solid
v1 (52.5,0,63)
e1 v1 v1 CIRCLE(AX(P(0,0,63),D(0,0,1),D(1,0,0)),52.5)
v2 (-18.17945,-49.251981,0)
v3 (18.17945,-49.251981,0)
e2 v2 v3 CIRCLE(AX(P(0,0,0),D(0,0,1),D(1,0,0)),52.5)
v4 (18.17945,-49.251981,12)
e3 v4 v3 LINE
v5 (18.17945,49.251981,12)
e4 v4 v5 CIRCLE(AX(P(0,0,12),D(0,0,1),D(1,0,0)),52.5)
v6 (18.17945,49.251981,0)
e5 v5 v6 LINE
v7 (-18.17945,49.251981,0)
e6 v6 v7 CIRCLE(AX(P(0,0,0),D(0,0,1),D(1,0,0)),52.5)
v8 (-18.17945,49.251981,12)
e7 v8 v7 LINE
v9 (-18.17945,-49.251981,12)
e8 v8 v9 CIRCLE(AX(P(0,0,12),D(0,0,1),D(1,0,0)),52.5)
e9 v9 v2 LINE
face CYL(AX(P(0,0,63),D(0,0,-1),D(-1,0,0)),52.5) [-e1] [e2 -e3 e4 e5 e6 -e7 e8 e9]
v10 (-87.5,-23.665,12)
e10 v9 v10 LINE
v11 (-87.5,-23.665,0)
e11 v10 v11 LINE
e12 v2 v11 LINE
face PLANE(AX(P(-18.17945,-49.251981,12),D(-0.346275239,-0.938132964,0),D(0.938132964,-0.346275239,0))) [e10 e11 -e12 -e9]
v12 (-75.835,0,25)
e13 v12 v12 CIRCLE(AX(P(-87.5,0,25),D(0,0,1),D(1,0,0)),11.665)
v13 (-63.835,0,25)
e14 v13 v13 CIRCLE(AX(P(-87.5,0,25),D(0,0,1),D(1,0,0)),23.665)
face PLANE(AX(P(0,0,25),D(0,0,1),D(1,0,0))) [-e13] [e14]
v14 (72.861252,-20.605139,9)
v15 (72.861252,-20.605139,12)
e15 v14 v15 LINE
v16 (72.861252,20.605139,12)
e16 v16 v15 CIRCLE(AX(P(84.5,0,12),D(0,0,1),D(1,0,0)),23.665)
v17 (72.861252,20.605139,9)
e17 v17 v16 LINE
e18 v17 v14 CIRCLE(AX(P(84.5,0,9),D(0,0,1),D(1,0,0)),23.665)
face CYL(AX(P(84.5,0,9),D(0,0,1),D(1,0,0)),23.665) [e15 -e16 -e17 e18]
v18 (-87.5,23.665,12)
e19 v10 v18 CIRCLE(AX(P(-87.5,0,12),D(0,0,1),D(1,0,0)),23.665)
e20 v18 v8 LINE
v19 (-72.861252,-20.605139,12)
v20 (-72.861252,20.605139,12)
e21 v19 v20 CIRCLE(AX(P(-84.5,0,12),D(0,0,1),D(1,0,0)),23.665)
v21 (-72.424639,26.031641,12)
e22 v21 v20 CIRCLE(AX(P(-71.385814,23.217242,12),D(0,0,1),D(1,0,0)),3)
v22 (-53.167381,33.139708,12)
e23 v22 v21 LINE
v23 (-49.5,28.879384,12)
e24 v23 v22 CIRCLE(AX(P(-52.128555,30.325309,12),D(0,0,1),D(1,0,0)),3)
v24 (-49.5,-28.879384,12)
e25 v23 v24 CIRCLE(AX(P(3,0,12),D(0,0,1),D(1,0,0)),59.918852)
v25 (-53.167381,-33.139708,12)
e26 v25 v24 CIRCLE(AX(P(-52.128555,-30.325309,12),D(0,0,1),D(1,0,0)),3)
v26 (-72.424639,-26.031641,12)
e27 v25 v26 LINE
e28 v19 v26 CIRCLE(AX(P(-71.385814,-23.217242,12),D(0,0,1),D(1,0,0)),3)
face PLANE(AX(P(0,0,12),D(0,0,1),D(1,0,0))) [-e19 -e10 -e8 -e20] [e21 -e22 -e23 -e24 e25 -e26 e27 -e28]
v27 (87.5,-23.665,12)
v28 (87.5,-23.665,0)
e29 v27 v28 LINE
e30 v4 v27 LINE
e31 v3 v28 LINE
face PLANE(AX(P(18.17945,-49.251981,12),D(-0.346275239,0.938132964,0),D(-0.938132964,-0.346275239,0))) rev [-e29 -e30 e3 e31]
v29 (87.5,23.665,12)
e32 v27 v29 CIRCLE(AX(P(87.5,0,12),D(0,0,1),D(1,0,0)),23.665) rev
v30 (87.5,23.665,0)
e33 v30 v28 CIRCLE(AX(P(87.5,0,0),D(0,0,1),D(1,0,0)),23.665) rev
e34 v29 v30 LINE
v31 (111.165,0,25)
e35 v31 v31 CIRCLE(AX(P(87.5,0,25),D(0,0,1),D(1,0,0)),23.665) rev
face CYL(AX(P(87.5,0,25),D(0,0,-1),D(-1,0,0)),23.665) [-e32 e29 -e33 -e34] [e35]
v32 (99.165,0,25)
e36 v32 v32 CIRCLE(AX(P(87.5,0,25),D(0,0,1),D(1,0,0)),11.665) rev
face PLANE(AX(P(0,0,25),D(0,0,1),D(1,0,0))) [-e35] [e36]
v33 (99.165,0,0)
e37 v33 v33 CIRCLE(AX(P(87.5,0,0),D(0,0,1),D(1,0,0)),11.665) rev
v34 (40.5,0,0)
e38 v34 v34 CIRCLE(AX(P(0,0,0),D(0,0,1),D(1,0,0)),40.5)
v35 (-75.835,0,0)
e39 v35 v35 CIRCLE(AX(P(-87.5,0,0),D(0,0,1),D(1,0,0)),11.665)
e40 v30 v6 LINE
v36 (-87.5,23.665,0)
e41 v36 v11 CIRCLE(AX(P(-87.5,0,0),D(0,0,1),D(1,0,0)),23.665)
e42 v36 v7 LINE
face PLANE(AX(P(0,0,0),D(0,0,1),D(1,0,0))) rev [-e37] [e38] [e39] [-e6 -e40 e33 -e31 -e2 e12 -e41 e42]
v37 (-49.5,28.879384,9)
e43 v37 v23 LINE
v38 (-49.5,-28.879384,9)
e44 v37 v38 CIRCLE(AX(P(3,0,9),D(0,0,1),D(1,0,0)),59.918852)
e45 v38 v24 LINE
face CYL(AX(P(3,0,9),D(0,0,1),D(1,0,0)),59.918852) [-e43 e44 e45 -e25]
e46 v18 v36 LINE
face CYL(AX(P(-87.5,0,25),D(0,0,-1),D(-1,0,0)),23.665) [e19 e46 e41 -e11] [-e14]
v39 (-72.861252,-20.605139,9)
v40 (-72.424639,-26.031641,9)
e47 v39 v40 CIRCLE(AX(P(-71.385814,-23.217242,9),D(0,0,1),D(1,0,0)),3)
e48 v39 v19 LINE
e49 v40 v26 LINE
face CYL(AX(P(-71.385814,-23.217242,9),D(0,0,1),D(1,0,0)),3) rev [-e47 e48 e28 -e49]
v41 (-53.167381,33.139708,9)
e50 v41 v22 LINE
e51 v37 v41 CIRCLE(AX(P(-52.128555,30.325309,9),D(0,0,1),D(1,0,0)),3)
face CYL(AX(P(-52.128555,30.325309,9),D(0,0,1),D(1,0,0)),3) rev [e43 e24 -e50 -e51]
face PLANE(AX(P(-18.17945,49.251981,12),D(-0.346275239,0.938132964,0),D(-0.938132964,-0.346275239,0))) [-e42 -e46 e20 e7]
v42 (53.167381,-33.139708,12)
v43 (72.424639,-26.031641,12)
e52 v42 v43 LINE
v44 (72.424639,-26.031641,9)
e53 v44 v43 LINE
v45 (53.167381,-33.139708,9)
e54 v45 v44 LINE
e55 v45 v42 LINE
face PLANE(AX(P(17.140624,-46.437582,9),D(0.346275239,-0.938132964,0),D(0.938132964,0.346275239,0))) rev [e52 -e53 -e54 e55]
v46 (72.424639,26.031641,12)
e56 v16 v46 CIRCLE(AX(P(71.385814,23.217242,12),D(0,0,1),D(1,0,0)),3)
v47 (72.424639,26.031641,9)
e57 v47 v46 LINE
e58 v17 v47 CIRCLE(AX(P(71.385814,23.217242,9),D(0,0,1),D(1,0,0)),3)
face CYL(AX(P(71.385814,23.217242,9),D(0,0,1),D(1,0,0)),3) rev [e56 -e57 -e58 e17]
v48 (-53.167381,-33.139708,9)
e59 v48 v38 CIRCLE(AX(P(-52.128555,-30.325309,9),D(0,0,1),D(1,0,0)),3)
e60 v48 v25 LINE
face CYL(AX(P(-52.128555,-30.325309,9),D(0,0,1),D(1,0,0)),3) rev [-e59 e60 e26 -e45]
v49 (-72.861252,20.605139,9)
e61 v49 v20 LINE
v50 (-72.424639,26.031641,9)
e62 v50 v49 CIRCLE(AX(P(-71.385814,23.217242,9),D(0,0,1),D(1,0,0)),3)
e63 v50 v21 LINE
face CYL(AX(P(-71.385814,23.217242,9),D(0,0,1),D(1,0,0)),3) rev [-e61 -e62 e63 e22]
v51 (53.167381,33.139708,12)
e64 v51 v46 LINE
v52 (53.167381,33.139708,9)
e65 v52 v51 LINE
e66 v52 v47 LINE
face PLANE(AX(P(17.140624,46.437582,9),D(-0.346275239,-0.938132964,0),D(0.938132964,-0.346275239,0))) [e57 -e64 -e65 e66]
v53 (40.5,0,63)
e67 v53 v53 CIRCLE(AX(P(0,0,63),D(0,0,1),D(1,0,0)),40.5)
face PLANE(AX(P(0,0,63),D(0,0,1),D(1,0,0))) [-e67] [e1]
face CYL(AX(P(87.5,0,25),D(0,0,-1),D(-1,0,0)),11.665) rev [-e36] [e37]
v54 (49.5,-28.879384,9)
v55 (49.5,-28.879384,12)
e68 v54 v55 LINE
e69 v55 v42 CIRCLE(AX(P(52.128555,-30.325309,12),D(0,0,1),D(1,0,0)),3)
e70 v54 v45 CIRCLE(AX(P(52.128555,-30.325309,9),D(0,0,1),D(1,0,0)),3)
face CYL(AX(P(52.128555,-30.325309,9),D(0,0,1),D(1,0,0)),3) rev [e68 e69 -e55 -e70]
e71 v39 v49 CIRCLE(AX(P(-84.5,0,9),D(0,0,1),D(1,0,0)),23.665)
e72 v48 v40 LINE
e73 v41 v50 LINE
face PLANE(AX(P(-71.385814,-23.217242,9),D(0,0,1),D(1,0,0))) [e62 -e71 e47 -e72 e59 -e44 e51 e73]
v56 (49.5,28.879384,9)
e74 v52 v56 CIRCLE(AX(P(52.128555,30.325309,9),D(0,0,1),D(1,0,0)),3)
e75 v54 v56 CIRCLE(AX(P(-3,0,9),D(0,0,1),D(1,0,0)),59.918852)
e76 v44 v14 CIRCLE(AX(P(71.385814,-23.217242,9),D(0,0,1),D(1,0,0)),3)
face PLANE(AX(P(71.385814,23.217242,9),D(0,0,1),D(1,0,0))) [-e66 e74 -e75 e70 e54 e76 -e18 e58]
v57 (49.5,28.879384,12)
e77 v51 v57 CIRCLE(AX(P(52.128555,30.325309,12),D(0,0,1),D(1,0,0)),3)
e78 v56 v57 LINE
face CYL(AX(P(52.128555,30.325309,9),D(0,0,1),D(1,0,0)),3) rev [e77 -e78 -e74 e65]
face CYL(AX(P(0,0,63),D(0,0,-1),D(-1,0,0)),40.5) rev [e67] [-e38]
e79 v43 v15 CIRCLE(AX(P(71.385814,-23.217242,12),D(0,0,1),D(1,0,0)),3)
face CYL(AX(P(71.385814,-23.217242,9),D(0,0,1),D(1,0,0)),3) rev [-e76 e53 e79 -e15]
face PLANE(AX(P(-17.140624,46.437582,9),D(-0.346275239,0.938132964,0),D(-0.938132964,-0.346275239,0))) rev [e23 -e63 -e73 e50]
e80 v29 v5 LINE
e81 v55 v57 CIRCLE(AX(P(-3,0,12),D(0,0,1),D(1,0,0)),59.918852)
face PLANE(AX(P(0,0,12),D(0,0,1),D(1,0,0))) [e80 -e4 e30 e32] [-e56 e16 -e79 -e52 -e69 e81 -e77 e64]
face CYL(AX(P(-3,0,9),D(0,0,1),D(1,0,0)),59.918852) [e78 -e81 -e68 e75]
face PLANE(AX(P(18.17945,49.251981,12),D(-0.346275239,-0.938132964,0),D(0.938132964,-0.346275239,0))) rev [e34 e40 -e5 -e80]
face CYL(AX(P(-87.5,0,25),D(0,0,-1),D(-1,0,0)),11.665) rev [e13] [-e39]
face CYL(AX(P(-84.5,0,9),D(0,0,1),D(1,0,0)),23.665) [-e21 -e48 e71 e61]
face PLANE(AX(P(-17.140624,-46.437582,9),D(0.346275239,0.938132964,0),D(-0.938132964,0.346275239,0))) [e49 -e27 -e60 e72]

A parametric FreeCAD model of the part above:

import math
import FreeCAD as App
import Part
import Sketcher
from FreeCAD import Vector
Q = App.Units.Quantity

doc = App.newDocument("Part")
params = doc.addObject("Spreadsheet::Sheet", "Params")
for row, (alias, value) in enumerate([
    ("sketch1_diameter", "105 mm"),
    ("sketch1_diameter2", "81 mm"),
    ("pad1_length", "63 mm"),
    ("sketch2_diameter", "47.33 mm"),
    ("sketch2_diameter2", "23.33 mm"),
    ("pad2_length", "25 mm"),
    ("sketch3_diameter", "47.33 mm"),
    ("sketch3_diameter2", "23.33 mm"),
    ("pad3_length", "25 mm"),
    ("sketch4_radius", "52.5 mm"),
    ("pad4_length", "12 mm"),
    ("sketch5_radius", "3 mm"),
    ("pocket1_length", "3 mm"),
    ("sketch6_radius", "3 mm"),
    ("pocket2_length", "3 mm"),
], start=1):
    params.set(f"A{row}", alias)
    params.set(f"B{row}", "=" + value)
    params.setAlias(f"B{row}", alias)

body = doc.addObject("PartDesign::Body", "Body")

# Sketch on XY plane
sketch1 = body.newObject("Sketcher::SketchObject", "Sketch")
sketch1.AttachmentSupport = (doc.getObject("XY_Plane"), [""])
sketch1.MapMode = "FlatFace"
sketch1.addGeometry(Part.Circle(Vector(0, 0, 0), Vector(0, 0, 1), 52), False)
sketch1.addGeometry(Part.Circle(Vector(0, 0, 0), Vector(0, 0, 1), 40), False)
sketch1.addConstraint(Sketcher.Constraint("Coincident", 0, 3, -1, 1))
sketch1.addConstraint(Sketcher.Constraint("Coincident", 1, 3, -1, 1))
sketch1.addConstraint(Sketcher.Constraint("Diameter", 0, Q("105 mm")))
sketch1.addConstraint(Sketcher.Constraint("Diameter", 1, Q("81 mm")))
sketch1.setExpression("Constraints[2]", "Params.sketch1_diameter")
sketch1.setExpression("Constraints[3]", "Params.sketch1_diameter2")
pad1 = body.newObject("PartDesign::Pad", "Pad")
pad1.Profile = sketch1
pad1.setExpression("Length", "Params.pad1_length")
body2 = doc.addObject("PartDesign::Body", "Body001")

# Sketch on XY plane
sketch2 = body2.newObject("Sketcher::SketchObject", "Sketch001")
sketch2.AttachmentSupport = (doc.getObject("XY_Plane001"), [""])
sketch2.MapMode = "FlatFace"
sketch2.addGeometry(Part.Circle(Vector(-88, 0, 0), Vector(0, 0, 1), 24), False)
sketch2.addGeometry(Part.Circle(Vector(-88, 0, 0), Vector(0, 0, 1), 12), False)
sketch2.addConstraint(Sketcher.Constraint("Coincident", 1, 3, 0, 3))
sketch2.addConstraint(Sketcher.Constraint("PointOnObject", 0, 3, -1))
sketch2.addConstraint(Sketcher.Constraint("Diameter", 0, Q("47.33 mm")))
sketch2.addConstraint(Sketcher.Constraint("Diameter", 1, Q("23.33 mm")))
sketch2.addConstraint(Sketcher.Constraint("DistanceX", 0, 3, -1, 1, Q("87.5 mm")))
sketch2.setExpression("Constraints[2]", "Params.sketch2_diameter")
sketch2.setExpression("Constraints[3]", "Params.sketch2_diameter2")
pad2 = body2.newObject("PartDesign::Pad", "Pad001")
pad2.Profile = sketch2
pad2.setExpression("Length", "Params.pad2_length")
body3 = doc.addObject("PartDesign::Body", "Body002")

# Sketch on XY plane
sketch3 = body3.newObject("Sketcher::SketchObject", "Sketch002")
sketch3.AttachmentSupport = (doc.getObject("XY_Plane002"), [""])
sketch3.MapMode = "FlatFace"
sketch3.addGeometry(Part.Circle(Vector(88, 0, 0), Vector(0, 0, 1), 24), False)
sketch3.addGeometry(Part.Circle(Vector(88, 0, 0), Vector(0, 0, 1), 12), False)
sketch3.addConstraint(Sketcher.Constraint("Coincident", 1, 3, 0, 3))
sketch3.addConstraint(Sketcher.Constraint("PointOnObject", 0, 3, -1))
sketch3.addConstraint(Sketcher.Constraint("Diameter", 0, Q("47.33 mm")))
sketch3.addConstraint(Sketcher.Constraint("Diameter", 1, Q("23.33 mm")))
sketch3.addConstraint(Sketcher.Constraint("DistanceX", -1, 1, 0, 3, Q("87.5 mm")))
sketch3.setExpression("Constraints[2]", "Params.sketch3_diameter")
sketch3.setExpression("Constraints[3]", "Params.sketch3_diameter2")
pad3 = body3.newObject("PartDesign::Pad", "Pad002")
pad3.Profile = sketch3
pad3.setExpression("Length", "Params.pad3_length")
body.AllowCompound = True
doc.recompute()

boolean = body.newObject("PartDesign::Boolean", "Boolean")
boolean.Type = "Fuse"
boolean.addObjects([body2])
doc.recompute()

boolean2 = body.newObject("PartDesign::Boolean", "Boolean001")
boolean2.Type = "Fuse"
boolean2.addObjects([body3])

# Sketch on XY plane
sketch4 = body.newObject("Sketcher::SketchObject", "Sketch003")
sketch4.AttachmentSupport = (doc.getObject("XY_Plane"), [""])
sketch4.MapMode = "FlatFace"
sketch4.addGeometry(Part.LineSegment(Vector(-18, 49, 0), Vector(-88, 24, 0)), False)
sketch4.addGeometry(Part.ArcOfCircle(Part.Circle(Vector(-88, 0, 0), Vector(0, 0, 1), 24), math.radians(-90), math.radians(90)), False)
sketch4.addGeometry(Part.LineSegment(Vector(-88, -24, 0), Vector(-18, -49, 0)), False)
sketch4.addGeometry(Part.ArcOfCircle(Part.Circle(Vector(0, 0, 0), Vector(0, 0, 1), 53), math.radians(110), math.radians(250)), False)
sketch4.addGeometry(Part.LineSegment(Vector(88, 24, 0), Vector(18, 49, 0)), False)
sketch4.addGeometry(Part.ArcOfCircle(Part.Circle(Vector(0, 0, 0), Vector(0, 0, 1), 53), math.radians(-70), math.radians(70)), False)
sketch4.addGeometry(Part.LineSegment(Vector(18, -49, 0), Vector(88, -24, 0)), False)
sketch4.addGeometry(Part.ArcOfCircle(Part.Circle(Vector(88, 0, 0), Vector(0, 0, 1), 24), math.radians(90), math.radians(270)), False)
sketch4.addConstraint(Sketcher.Constraint("Coincident", 0, 2, 1, 2))
sketch4.addConstraint(Sketcher.Constraint("Coincident", 1, 1, 2, 1))
sketch4.addConstraint(Sketcher.Constraint("Tangent", 2, 2, 3, 2))
sketch4.addConstraint(Sketcher.Constraint("Tangent", 3, 1, 0, 1))
sketch4.addConstraint(Sketcher.Constraint("Tangent", 4, 2, 5, 2))
sketch4.addConstraint(Sketcher.Constraint("Tangent", 5, 1, 6, 1))
sketch4.addConstraint(Sketcher.Constraint("Coincident", 6, 2, 7, 2))
sketch4.addConstraint(Sketcher.Constraint("Coincident", 7, 1, 4, 1))
sketch4.addConstraint(Sketcher.Constraint("Coincident", 3, 3, -1, 1))
sketch4.addConstraint(Sketcher.Constraint("Coincident", 5, 3, -1, 1))
sketch4.addConstraint(Sketcher.Constraint("Equal", 3, 5))
sketch4.addConstraint(Sketcher.Constraint("Equal", 1, 7))
sketch4.addConstraint(Sketcher.Constraint("Symmetric", 1, 3, 7, 3, -1, 1))
sketch4.addConstraint(Sketcher.Constraint("Symmetric", 1, 1, 6, 2, -2))
sketch4.addConstraint(Sketcher.Constraint("Parallel", 2, 4))
sketch4.addConstraint(Sketcher.Constraint("Parallel", 0, 6))
sketch4.addConstraint(Sketcher.Constraint("Vertical", 1, 3, 0, 2))
sketch4.addConstraint(Sketcher.Constraint("Radius", 3, Q("52.5 mm")))
sketch4.addConstraint(Sketcher.Constraint("Radius", 1, Q("23.665 mm")))
sketch4.addConstraint(Sketcher.Constraint("DistanceX", 1, 3, 7, 3, Q("175 mm")))
sketch4.setExpression("Constraints[17]", "Params.sketch4_radius")
pad4 = body.newObject("PartDesign::Pad", "Pad003")
pad4.Profile = sketch4
pad4.setExpression("Length", "Params.pad4_length")

# Sketch on XY plane
sketch5 = body.newObject("Sketcher::SketchObject", "Sketch004")
sketch5.AttachmentSupport = (doc.getObject("XY_Plane"), [""])
sketch5.MapMode = "FlatFace"
sketch5.AttachmentOffset = App.Placement(Vector(0, 0, 12), App.Rotation())
sketch5.addGeometry(Part.ArcOfCircle(Part.Circle(Vector(52.1, -30.3, 0), Vector(0, 0, 1), 3), math.radians(151), math.radians(290)), False)
sketch5.addGeometry(Part.LineSegment(Vector(53.2, -33.1, 0), Vector(72.4, -26, 0)), False)
sketch5.addGeometry(Part.ArcOfCircle(Part.Circle(Vector(71.4, -23.2, 0), Vector(0, 0, 1), 3), math.radians(-70), math.radians(61)), False)
sketch5.addGeometry(Part.ArcOfCircle(Part.Circle(Vector(84.5, 0, 0), Vector(0, 0, 1), 23.7), math.radians(119), math.radians(241)), False)
sketch5.addGeometry(Part.ArcOfCircle(Part.Circle(Vector(71.4, 23.2, 0), Vector(0, 0, 1), 3), math.radians(-61), math.radians(70)), False)
sketch5.addGeometry(Part.LineSegment(Vector(72.4, 26, 0), Vector(53.2, 33.1, 0)), False)
sketch5.addGeometry(Part.ArcOfCircle(Part.Circle(Vector(52.1, 30.3, 0), Vector(0, 0, 1), 3), math.radians(70), math.radians(209)), False)
sketch5.addGeometry(Part.ArcOfCircle(Part.Circle(Vector(-3, 0, 0), Vector(0, 0, 1), 59.9), math.radians(-29), math.radians(29)), False)
sketch5.addConstraint(Sketcher.Constraint("Tangent", 0, 2, 1, 1))
sketch5.addConstraint(Sketcher.Constraint("Tangent", 1, 2, 2, 1))
sketch5.addConstraint(Sketcher.Constraint("Tangent", 2, 2, 3, 2))
sketch5.addConstraint(Sketcher.Constraint("Tangent", 3, 1, 4, 1))
sketch5.addConstraint(Sketcher.Constraint("Tangent", 4, 2, 5, 1))
sketch5.addConstraint(Sketcher.Constraint("Tangent", 5, 2, 6, 1))
sketch5.addConstraint(Sketcher.Constraint("Tangent", 6, 2, 7, 2))
sketch5.addConstraint(Sketcher.Constraint("Tangent", 7, 1, 0, 1))
sketch5.addConstraint(Sketcher.Constraint("Equal", 0, 2))
sketch5.addConstraint(Sketcher.Constraint("Equal", 2, 4))
sketch5.addConstraint(Sketcher.Constraint("Equal", 4, 6))
sketch5.addConstraint(Sketcher.Constraint("Symmetric", 2, 3, 4, 3, -1))
sketch5.addConstraint(Sketcher.Constraint("Symmetric", 0, 3, 6, 3, -1))
sketch5.addConstraint(Sketcher.Constraint("Radius", 0, Q("3 mm")))
sketch5.addConstraint(Sketcher.Constraint("DistanceX", 7, 3, -1, 1, Q("3 mm")))
sketch5.addConstraint(Sketcher.Constraint("Radius", 3, Q("23.665 mm")))
sketch5.addConstraint(Sketcher.Constraint("DistanceX", -1, 1, 3, 3, Q("84.5 mm")))
sketch5.addConstraint(Sketcher.Constraint("DistanceX", -1, 1, 6, 2, Q("49.5 mm")))
sketch5.addConstraint(Sketcher.Constraint("Radius", 7, Q("59.918852 mm")))
sketch5.addConstraint(Sketcher.Constraint("DistanceY", 0, 2, 0, 3, Q("2.814399 mm")))
sketch5.setExpression("Constraints[13]", "Params.sketch5_radius")
pocket1 = body.newObject("PartDesign::Pocket", "Pocket")
pocket1.Profile = sketch5
pocket1.setExpression("Length", "Params.pocket1_length")

# Sketch on XY plane
sketch6 = body.newObject("Sketcher::SketchObject", "Sketch005")
sketch6.AttachmentSupport = (doc.getObject("XY_Plane"), [""])
sketch6.MapMode = "FlatFace"
sketch6.AttachmentOffset = App.Placement(Vector(0, 0, 12), App.Rotation())
sketch6.addGeometry(Part.ArcOfCircle(Part.Circle(Vector(3, 0, 0), Vector(0, 0, 1), 59.9), math.radians(151), math.radians(209)), False)
sketch6.addGeometry(Part.ArcOfCircle(Part.Circle(Vector(-52.1, 30.3, 0), Vector(0, 0, 1), 3), math.radians(-29), math.radians(110)), False)
sketch6.addGeometry(Part.LineSegment(Vector(-53.2, 33.1, 0), Vector(-72.4, 26, 0)), False)
sketch6.addGeometry(Part.ArcOfCircle(Part.Circle(Vector(-71.4, 23.2, 0), Vector(0, 0, 1), 3), math.radians(110), math.radians(241)), False)
sketch6.addGeometry(Part.ArcOfCircle(Part.Circle(Vector(-84.5, 0, 0), Vector(0, 0, 1), 23.7), math.radians(-61), math.radians(61)), False)
sketch6.addGeometry(Part.ArcOfCircle(Part.Circle(Vector(-71.4, -23.2, 0), Vector(0, 0, 1), 3), math.radians(119), math.radians(250)), False)
sketch6.addGeometry(Part.LineSegment(Vector(-72.4, -26, 0), Vector(-53.2, -33.1, 0)), False)
sketch6.addGeometry(Part.ArcOfCircle(Part.Circle(Vector(-52.1, -30.3, 0), Vector(0, 0, 1), 3), math.radians(-110), math.radians(29)), False)
sketch6.addConstraint(Sketcher.Constraint("Tangent", 0, 1, 1, 1))
sketch6.addConstraint(Sketcher.Constraint("Tangent", 1, 2, 2, 1))
sketch6.addConstraint(Sketcher.Constraint("Tangent", 2, 2, 3, 1))
sketch6.addConstraint(Sketcher.Constraint("Tangent", 3, 2, 4, 2))
sketch6.addConstraint(Sketcher.Constraint("Tangent", 4, 1, 5, 1))
sketch6.addConstraint(Sketcher.Constraint("Tangent", 5, 2, 6, 1))
sketch6.addConstraint(Sketcher.Constraint("Tangent", 6, 2, 7, 1))
sketch6.addConstraint(Sketcher.Constraint("Tangent", 7, 2, 0, 2))
sketch6.addConstraint(Sketcher.Constraint("Equal", 1, 3))
sketch6.addConstraint(Sketcher.Constraint("Equal", 3, 5))
sketch6.addConstraint(Sketcher.Constraint("Equal", 5, 7))
sketch6.addConstraint(Sketcher.Constraint("Symmetric", 3, 3, 5, 3, -1))
sketch6.addConstraint(Sketcher.Constraint("Symmetric", 1, 3, 7, 3, -1))
sketch6.addConstraint(Sketcher.Constraint("Radius", 1, Q("3 mm")))
sketch6.addConstraint(Sketcher.Constraint("DistanceX", -1, 1, 0, 3, Q("3 mm")))
sketch6.addConstraint(Sketcher.Constraint("Radius", 4, Q("23.665 mm")))
sketch6.addConstraint(Sketcher.Constraint("DistanceX", 4, 3, 0, 1, Q("35 mm")))
sketch6.addConstraint(Sketcher.Constraint("DistanceX", 4, 3, -1, 1, Q("84.5 mm")))
sketch6.addConstraint(Sketcher.Constraint("Radius", 0, Q("59.918852 mm")))
sketch6.addConstraint(Sketcher.Constraint("DistanceY", 1, 3, 1, 2, Q("2.814399 mm")))
sketch6.setExpression("Constraints[13]", "Params.sketch6_radius")
pocket2 = body.newObject("PartDesign::Pocket", "Pocket001")
pocket2.Profile = sketch6
pocket2.setExpression("Length", "Params.pocket2_length")

doc.recompute()
